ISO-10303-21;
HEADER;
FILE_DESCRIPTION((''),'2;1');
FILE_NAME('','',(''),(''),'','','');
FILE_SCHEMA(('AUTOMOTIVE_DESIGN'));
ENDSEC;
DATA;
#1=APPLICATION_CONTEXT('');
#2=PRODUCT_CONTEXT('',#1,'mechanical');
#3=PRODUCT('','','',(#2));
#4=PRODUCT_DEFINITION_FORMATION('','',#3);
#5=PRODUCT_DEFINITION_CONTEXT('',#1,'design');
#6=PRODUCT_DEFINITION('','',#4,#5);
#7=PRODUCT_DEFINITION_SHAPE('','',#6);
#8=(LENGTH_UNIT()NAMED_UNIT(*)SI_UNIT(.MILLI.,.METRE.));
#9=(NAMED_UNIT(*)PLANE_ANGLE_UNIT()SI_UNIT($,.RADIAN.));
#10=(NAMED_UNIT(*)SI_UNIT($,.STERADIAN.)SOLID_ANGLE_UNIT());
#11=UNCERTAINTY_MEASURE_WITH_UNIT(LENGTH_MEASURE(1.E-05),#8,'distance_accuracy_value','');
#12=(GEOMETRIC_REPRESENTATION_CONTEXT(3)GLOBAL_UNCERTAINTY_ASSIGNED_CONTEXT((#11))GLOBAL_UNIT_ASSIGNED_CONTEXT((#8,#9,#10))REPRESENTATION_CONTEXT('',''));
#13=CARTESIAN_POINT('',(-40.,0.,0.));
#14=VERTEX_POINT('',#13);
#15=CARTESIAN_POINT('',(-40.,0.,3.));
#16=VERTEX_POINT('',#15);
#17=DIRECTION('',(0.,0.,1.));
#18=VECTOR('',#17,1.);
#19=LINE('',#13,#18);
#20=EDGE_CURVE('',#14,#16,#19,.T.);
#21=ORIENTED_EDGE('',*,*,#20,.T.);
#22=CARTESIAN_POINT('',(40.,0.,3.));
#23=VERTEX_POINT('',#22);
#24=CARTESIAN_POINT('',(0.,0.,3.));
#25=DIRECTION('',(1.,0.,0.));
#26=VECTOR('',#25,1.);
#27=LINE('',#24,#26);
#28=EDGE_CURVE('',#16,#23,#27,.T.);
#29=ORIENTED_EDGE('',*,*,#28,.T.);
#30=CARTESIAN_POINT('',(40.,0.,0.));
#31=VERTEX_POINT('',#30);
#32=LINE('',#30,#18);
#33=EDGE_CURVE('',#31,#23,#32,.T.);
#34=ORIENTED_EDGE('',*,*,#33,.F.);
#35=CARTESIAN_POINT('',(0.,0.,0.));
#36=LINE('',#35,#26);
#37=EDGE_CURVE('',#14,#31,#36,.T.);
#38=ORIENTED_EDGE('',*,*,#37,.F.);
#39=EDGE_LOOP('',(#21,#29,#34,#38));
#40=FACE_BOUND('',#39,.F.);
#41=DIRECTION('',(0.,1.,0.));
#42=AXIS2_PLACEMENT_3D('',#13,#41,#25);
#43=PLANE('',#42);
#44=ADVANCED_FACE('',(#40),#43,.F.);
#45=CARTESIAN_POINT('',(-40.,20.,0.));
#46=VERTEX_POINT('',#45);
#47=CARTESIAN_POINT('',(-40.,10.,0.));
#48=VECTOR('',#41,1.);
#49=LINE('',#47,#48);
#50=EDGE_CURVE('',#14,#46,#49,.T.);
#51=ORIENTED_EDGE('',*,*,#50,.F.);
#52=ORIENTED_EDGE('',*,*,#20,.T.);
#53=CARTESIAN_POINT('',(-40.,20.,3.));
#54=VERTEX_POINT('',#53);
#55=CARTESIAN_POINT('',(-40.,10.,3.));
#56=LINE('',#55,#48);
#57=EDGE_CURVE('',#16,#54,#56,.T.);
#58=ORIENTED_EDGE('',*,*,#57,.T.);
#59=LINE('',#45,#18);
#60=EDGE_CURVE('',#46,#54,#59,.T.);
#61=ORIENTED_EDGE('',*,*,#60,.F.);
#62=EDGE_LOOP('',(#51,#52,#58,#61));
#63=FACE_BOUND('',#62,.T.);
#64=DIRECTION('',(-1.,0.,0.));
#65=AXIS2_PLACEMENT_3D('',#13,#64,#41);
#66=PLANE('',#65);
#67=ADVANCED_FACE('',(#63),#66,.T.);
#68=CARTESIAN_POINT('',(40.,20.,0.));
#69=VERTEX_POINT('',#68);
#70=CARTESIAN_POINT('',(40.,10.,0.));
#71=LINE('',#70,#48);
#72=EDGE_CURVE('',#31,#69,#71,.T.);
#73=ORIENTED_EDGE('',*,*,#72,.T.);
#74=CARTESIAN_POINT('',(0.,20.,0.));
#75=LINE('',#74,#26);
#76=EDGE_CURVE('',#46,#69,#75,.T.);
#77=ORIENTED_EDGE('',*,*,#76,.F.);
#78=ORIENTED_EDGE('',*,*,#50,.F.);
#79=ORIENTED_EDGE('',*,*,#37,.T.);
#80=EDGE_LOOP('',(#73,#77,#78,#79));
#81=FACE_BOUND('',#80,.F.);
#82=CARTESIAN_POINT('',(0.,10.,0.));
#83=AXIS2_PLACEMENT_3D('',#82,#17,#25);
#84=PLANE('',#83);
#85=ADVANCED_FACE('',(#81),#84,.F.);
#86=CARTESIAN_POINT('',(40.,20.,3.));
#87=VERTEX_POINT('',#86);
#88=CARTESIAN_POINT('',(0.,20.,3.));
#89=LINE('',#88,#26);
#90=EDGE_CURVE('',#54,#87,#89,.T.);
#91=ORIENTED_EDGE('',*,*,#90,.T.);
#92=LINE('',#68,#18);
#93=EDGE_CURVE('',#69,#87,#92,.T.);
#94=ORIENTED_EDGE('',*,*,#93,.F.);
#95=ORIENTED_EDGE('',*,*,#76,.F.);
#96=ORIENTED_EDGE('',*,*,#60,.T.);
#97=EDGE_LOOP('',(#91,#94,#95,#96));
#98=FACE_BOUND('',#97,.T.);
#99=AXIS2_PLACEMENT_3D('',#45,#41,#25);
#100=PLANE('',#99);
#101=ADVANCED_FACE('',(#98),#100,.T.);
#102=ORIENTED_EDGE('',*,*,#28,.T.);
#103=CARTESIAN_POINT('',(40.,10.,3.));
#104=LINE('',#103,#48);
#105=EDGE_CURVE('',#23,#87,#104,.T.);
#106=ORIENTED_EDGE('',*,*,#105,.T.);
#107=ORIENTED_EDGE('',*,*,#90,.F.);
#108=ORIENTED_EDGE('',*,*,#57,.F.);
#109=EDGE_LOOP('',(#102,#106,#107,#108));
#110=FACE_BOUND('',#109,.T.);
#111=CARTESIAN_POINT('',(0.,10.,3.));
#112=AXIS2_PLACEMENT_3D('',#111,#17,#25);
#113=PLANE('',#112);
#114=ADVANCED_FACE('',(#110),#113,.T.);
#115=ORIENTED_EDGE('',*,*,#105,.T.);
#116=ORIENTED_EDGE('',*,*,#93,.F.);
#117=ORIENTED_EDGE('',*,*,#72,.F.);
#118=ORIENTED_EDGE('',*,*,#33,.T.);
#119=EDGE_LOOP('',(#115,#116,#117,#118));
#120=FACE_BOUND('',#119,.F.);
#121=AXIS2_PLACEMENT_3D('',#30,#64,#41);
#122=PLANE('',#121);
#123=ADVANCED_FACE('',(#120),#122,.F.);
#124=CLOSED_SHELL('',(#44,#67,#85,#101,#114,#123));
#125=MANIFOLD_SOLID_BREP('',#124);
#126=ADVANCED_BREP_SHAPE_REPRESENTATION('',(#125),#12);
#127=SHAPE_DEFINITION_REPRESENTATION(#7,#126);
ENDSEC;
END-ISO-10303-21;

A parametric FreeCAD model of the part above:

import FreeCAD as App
import Part
import Sketcher


def add_polygon(sketch, points):
    """Adds a closed chain of lines whose ends are joined by coincident constraints."""
    first, n = sketch.GeometryCount, len(points)
    for a, b in zip(points, points[1:] + points[:1]):
        sketch.addGeometry(Part.LineSegment(App.Vector(*a, 0), App.Vector(*b, 0)), False)
    for i in range(n):
        sketch.addConstraint(Sketcher.Constraint("Coincident", first + i, 2, first + (i + 1) % n, 1))

doc = App.newDocument("Part")
params = doc.addObject("Spreadsheet::Sheet", "Params")
for row, (alias, value) in enumerate([
    ("sketch1_width", "80 mm"),
    ("sketch1_height", "20 mm"),
    ("pad1_length", "3 mm"),
], start=1):
    params.set(f"A{row}", alias)
    params.set(f"B{row}", "=" + value)
    params.setAlias(f"B{row}", alias)

body = doc.addObject("PartDesign::Body", "Body")

# Sketch on XY plane
sketch1 = body.newObject("Sketcher::SketchObject", "Sketch")
sketch1.AttachmentSupport = (doc.getObject("XY_Plane"), [""])
sketch1.MapMode = "FlatFace"
add_polygon(sketch1, [(-40, 20), (-40, 0), (40, 0), (40, 20)])  # lines 0-3
sketch1.addConstraint(Sketcher.Constraint("Vertical", 0))
sketch1.addConstraint(Sketcher.Constraint("Horizontal", 1))
sketch1.addConstraint(Sketcher.Constraint("Vertical", 2))
sketch1.addConstraint(Sketcher.Constraint("Horizontal", 3))
sketch1.addConstraint(Sketcher.Constraint("Symmetric", 0, 2, 1, 2, -1, 1))
sketch1.addConstraint(Sketcher.Constraint("DistanceX", 1, 1, 1, 2, 80.0))
sketch1.addConstraint(Sketcher.Constraint("DistanceY", 0, 2, 0, 1, 20.0))
sketch1.setExpression("Constraints[9]", "Params.sketch1_width")
sketch1.setExpression("Constraints[10]", "Params.sketch1_height")
pad1 = body.newObject("PartDesign::Pad", "Pad")
pad1.Profile = sketch1
pad1.setExpression("Length", "Params.pad1_length")

doc.recompute()
